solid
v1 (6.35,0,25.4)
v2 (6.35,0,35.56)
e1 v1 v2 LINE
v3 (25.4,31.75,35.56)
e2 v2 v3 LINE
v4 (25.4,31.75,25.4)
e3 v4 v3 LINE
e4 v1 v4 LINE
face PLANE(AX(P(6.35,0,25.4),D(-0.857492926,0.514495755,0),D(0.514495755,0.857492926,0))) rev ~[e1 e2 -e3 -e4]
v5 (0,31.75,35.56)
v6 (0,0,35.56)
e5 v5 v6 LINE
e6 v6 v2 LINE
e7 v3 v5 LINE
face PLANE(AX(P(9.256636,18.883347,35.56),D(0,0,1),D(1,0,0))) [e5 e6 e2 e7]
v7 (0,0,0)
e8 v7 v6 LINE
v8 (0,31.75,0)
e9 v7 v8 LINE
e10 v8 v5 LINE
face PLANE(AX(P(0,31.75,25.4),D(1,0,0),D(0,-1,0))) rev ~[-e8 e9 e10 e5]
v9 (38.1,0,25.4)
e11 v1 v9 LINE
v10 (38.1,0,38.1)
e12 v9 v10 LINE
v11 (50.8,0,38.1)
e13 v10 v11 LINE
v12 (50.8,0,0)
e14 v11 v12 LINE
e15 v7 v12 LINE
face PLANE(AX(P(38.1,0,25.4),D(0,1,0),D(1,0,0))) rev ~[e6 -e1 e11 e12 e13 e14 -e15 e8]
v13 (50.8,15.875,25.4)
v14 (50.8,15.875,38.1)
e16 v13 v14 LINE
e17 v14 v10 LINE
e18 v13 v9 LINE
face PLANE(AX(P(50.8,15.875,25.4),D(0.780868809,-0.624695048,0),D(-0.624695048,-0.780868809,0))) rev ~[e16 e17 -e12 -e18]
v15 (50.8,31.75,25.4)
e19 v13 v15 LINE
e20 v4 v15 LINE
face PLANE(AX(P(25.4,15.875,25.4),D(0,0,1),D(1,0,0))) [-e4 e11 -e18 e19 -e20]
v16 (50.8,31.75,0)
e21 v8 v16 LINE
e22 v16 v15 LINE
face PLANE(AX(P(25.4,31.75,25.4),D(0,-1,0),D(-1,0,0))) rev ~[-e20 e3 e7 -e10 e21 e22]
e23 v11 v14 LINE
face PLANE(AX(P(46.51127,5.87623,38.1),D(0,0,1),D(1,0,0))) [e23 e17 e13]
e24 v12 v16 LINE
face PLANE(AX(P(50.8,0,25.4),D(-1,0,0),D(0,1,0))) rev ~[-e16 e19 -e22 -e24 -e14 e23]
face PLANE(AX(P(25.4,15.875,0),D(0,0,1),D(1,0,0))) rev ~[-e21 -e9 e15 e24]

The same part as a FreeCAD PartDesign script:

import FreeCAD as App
import Part
import Sketcher
Q = App.Units.Quantity

doc = App.newDocument("Part")
params = doc.addObject("Spreadsheet::Sheet", "Params")
for row, (alias, value) in enumerate([
    ("sketch1_width", "2 in"),
    ("sketch1_height", "1.25 in"),
    ("pad1_length", "1 in"),
    ("sketch2_width", "1 in"),
    ("sketch2_width2", "0.25 in"),
    ("sketch2_height", "1.25 in"),
    ("pad2_length", "0.4 in"),
    ("sketch3_width", "0.5 in"),
    ("sketch3_height", "0.625 in"),
    ("pad3_length", "0.5 in"),
], start=1):
    params.set(f"A{row}", alias)
    params.set(f"B{row}", "=" + value)
    params.setAlias(f"B{row}", alias)

body = doc.addObject("PartDesign::Body", "Body")

# Sketch on XY plane
sketch1 = doc.addObject("Sketcher::SketchObject", "Sketch")
body.addObject(sketch1)
sketch1.AttachmentSupport = (doc.XY_Plane, [""])
sketch1.MapMode = "FlatFace"
sketch1.addGeometry([
    Part.LineSegment(App.Vector(0, 32, 0), App.Vector(0, 0, 0)),
    Part.LineSegment(App.Vector(0, 0, 0), App.Vector(51, 0, 0)),
    Part.LineSegment(App.Vector(51, 0, 0), App.Vector(51, 32, 0)),
    Part.LineSegment(App.Vector(51, 32, 0), App.Vector(0, 32, 0)),
], False)
sketch1.addConstraint([
    Sketcher.Constraint("Coincident", 0, 2, 1, 1),
    Sketcher.Constraint("Coincident", 1, 2, 2, 1),
    Sketcher.Constraint("Coincident", 2, 2, 3, 1),
    Sketcher.Constraint("Coincident", 3, 2, 0, 1),
    Sketcher.Constraint("Vertical", 0),
    Sketcher.Constraint("Horizontal", 1),
    Sketcher.Constraint("Vertical", 2),
    Sketcher.Constraint("Horizontal", 3),
    Sketcher.Constraint("Coincident", 0, 2, -1, 1),
    Sketcher.Constraint("DistanceX", 1, 1, 1, 2, Q("2 in")),
    Sketcher.Constraint("DistanceY", 0, 2, 0, 1, Q("1.25 in")),
])
sketch1.setExpression("Constraints[9]", "Params.sketch1_width")
sketch1.setExpression("Constraints[10]", "Params.sketch1_height")
pad1 = doc.addObject("PartDesign::Pad", "Pad")
body.addObject(pad1)
pad1.Profile = sketch1
pad1.setExpression("Length", "Params.pad1_length")

# Sketch on XY plane
sketch2 = doc.addObject("Sketcher::SketchObject", "Sketch001")
body.addObject(sketch2)
sketch2.AttachmentSupport = (doc.XY_Plane, [""])
sketch2.MapMode = "FlatFace"
sketch2.AttachmentOffset = App.Placement(App.Vector(0, 0, 1 * 25.4), App.Rotation())
sketch2.addGeometry([
    Part.LineSegment(App.Vector(25, 32, 0), App.Vector(0, 32, 0)),
    Part.LineSegment(App.Vector(0, 32, 0), App.Vector(0, 0, 0)),
    Part.LineSegment(App.Vector(0, 0, 0), App.Vector(6, 0, 0)),
    Part.LineSegment(App.Vector(6, 0, 0), App.Vector(25, 32, 0)),
], False)
sketch2.addConstraint([
    Sketcher.Constraint("Coincident", 0, 2, 1, 1),
    Sketcher.Constraint("Coincident", 1, 2, 2, 1),
    Sketcher.Constraint("Coincident", 2, 2, 3, 1),
    Sketcher.Constraint("Coincident", 3, 2, 0, 1),
    Sketcher.Constraint("Horizontal", 0),
    Sketcher.Constraint("Vertical", 1),
    Sketcher.Constraint("Horizontal", 2),
    Sketcher.Constraint("Coincident", 1, 2, -1, 1),
    Sketcher.Constraint("DistanceX", 0, 2, 0, 1, Q("1 in")),
    Sketcher.Constraint("DistanceX", 2, 1, 2, 2, Q("0.25 in")),
    Sketcher.Constraint("DistanceY", 1, 2, 1, 1, Q("1.25 in")),
])
sketch2.setExpression("Constraints[8]", "Params.sketch2_width")
sketch2.setExpression("Constraints[9]", "Params.sketch2_width2")
sketch2.setExpression("Constraints[10]", "Params.sketch2_height")
pad2 = doc.addObject("PartDesign::Pad", "Pad001")
body.addObject(pad2)
pad2.Profile = sketch2
pad2.setExpression("Length", "Params.pad2_length")

# Sketch on XY plane
sketch3 = doc.addObject("Sketcher::SketchObject", "Sketch002")
body.addObject(sketch3)
sketch3.AttachmentSupport = (doc.XY_Plane, [""])
sketch3.MapMode = "FlatFace"
sketch3.AttachmentOffset = App.Placement(App.Vector(0, 0, 1 * 25.4), App.Rotation())
sketch3.addGeometry([
    Part.LineSegment(App.Vector(51, 16, 0), App.Vector(38, 0, 0)),
    Part.LineSegment(App.Vector(38, 0, 0), App.Vector(51, 0, 0)),
    Part.LineSegment(App.Vector(51, 0, 0), App.Vector(51, 16, 0)),
], False)
sketch3.addConstraint([
    Sketcher.Constraint("Coincident", 0, 2, 1, 1),
    Sketcher.Constraint("Coincident", 1, 2, 2, 1),
    Sketcher.Constraint("Coincident", 2, 2, 0, 1),
    Sketcher.Constraint("Horizontal", 1),
    Sketcher.Constraint("Vertical", 2),
    Sketcher.Constraint("PointOnObject", 0, 2, -1),
    Sketcher.Constraint("DistanceX", 1, 1, 1, 2, Q("0.5 in")),
    Sketcher.Constraint("DistanceX", -1, 1, 1, 2, Q("2 in")),
    Sketcher.Constraint("DistanceY", 2, 1, 2, 2, Q("0.625 in")),
])
sketch3.setExpression("Constraints[6]", "Params.sketch3_width")
sketch3.setExpression("Constraints[8]", "Params.sketch3_height")
pad3 = doc.addObject("PartDesign::Pad", "Pad002")
body.addObject(pad3)
pad3.Profile = sketch3
pad3.setExpression("Length", "Params.pad3_length")

doc.recompute()
